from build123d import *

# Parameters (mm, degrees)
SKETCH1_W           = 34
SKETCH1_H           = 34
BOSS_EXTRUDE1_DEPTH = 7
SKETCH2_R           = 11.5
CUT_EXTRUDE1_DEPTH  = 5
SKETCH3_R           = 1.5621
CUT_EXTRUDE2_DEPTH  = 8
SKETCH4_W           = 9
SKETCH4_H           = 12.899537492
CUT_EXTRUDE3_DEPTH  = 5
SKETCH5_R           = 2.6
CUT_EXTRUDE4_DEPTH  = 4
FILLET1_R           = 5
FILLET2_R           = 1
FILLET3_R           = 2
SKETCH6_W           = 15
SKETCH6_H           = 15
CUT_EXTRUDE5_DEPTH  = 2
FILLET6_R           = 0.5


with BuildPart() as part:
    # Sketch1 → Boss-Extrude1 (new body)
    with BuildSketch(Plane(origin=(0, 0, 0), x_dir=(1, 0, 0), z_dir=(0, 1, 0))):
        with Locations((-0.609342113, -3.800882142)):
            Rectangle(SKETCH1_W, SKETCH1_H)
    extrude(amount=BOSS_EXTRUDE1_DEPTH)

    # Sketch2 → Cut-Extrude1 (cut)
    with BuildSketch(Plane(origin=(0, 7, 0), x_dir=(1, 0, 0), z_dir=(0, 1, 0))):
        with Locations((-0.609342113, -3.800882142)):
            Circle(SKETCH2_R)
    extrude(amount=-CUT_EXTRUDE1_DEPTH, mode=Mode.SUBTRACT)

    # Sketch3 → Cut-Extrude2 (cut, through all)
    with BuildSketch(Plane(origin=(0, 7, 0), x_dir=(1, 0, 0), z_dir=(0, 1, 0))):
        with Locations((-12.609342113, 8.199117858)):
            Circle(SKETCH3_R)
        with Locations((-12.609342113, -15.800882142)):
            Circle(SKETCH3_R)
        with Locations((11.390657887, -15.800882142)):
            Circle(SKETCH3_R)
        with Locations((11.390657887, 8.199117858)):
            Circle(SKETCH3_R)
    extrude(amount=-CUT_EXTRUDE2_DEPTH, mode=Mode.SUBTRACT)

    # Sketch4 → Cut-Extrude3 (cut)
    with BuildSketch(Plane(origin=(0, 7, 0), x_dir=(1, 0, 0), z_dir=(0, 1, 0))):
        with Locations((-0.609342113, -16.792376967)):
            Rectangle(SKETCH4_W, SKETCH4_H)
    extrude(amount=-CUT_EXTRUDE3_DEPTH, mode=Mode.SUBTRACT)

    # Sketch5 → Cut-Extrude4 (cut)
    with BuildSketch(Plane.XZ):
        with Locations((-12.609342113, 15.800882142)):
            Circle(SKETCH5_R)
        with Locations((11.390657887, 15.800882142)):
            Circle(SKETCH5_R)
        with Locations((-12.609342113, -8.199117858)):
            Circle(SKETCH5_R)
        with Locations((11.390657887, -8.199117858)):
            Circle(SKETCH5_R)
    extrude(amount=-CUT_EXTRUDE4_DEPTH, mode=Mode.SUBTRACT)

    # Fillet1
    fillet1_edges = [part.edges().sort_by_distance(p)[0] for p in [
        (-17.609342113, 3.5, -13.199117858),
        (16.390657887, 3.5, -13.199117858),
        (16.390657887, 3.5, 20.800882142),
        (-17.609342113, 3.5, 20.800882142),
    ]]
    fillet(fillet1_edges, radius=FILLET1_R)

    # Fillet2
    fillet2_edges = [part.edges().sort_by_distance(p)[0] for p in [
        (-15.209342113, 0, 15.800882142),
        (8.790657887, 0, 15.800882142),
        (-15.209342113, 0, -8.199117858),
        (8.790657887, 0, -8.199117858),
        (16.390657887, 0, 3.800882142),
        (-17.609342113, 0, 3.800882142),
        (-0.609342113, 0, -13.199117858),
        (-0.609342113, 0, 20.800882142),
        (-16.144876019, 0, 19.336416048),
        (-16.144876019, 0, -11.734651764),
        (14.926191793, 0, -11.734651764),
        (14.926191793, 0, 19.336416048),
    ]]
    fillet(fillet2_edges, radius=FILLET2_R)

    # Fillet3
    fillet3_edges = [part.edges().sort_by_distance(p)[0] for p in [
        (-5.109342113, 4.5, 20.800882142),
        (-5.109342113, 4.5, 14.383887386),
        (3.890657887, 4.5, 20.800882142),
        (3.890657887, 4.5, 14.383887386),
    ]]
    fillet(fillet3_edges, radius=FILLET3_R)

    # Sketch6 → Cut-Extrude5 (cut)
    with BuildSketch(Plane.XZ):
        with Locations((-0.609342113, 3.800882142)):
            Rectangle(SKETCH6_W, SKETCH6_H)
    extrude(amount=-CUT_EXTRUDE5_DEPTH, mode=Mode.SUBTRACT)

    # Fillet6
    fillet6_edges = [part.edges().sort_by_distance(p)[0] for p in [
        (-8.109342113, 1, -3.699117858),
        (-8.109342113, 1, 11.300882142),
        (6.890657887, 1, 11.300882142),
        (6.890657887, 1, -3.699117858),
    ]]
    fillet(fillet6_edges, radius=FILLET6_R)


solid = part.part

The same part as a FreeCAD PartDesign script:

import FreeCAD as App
import Part
import Sketcher
from FreeCAD import Vector


def edges_at(feature, points):
    """Names of the edges that pass closest to the given points."""
    edges = feature.Shape.Edges
    near = lambda p: min(range(len(edges)), key=lambda i: edges[i].distToShape(Part.Vertex(*p))[0])
    return sorted({f"Edge{near(p) + 1}" for p in points})


def add_polygon(sketch, points):
    """Adds a closed chain of lines whose ends are joined by coincident constraints."""
    first, n = sketch.GeometryCount, len(points)
    for a, b in zip(points, points[1:] + points[:1]):
        sketch.addGeometry(Part.LineSegment(App.Vector(*a, 0), App.Vector(*b, 0)), False)
    for i in range(n):
        sketch.addConstraint(Sketcher.Constraint("Coincident", first + i, 2, first + (i + 1) % n, 1))

doc = App.newDocument("Part")
body = doc.addObject("PartDesign::Body", "Body")

# Sketch on XZ plane
sketch1 = body.newObject("Sketcher::SketchObject", "Sketch")
sketch1.AttachmentSupport = (doc.getObject("XZ_Plane"), [""])
sketch1.MapMode = "FlatFace"
add_polygon(sketch1, [(-17.609342, -13.199118), (-17.609342, 20.800882), (16.390658, 20.800882), (16.390658, -13.199118)])  # lines 0-3
sketch1.addConstraint(Sketcher.Constraint("Vertical", 0))
sketch1.addConstraint(Sketcher.Constraint("Horizontal", 1))
sketch1.addConstraint(Sketcher.Constraint("Vertical", 2))
sketch1.addConstraint(Sketcher.Constraint("Horizontal", 3))
sketch1.addConstraint(Sketcher.Constraint("Equal", 3, 0))
sketch1.addConstraint(Sketcher.Constraint("DistanceX", 1, 1, 1, 2, 34.0))
sketch1.addConstraint(Sketcher.Constraint("DistanceX", 0, 2, -1, 1, 17.609342))
sketch1.addConstraint(Sketcher.Constraint("DistanceY", -1, 1, 0, 2, 20.800882))
pad1 = body.newObject("PartDesign::Pad", "Pad")
pad1.Profile = sketch1
pad1.Length = 7
pad1.Reversed = True

# Sketch on XZ plane
sketch2 = body.newObject("Sketcher::SketchObject", "Sketch001")
sketch2.AttachmentSupport = (doc.getObject("XZ_Plane"), [""])
sketch2.MapMode = "FlatFace"
sketch2.AttachmentOffset = App.Placement(Vector(0, 0, -7), App.Rotation())
sketch2.addGeometry(Part.Circle(Vector(-0.609342, 3.800882, 0), Vector(0, 0, 1), 11.5), False)
sketch2.addConstraint(Sketcher.Constraint("Diameter", 0, 23.0))
sketch2.addConstraint(Sketcher.Constraint("DistanceX", 0, 3, -1, 1, 0.609342))
sketch2.addConstraint(Sketcher.Constraint("DistanceY", -1, 1, 0, 3, 3.800882))
pocket1 = body.newObject("PartDesign::Pocket", "Pocket")
pocket1.Profile = sketch2
pocket1.Length = 5
pocket1.Reversed = True

# Sketch on XZ plane
sketch3 = body.newObject("Sketcher::SketchObject", "Sketch002")
sketch3.AttachmentSupport = (doc.getObject("XZ_Plane"), [""])
sketch3.MapMode = "FlatFace"
sketch3.AttachmentOffset = App.Placement(Vector(0, 0, -7), App.Rotation())
sketch3.addGeometry(Part.Circle(Vector(-12.609342, -8.199118, 0), Vector(0, 0, 1), 1.5621), False)
sketch3.addGeometry(Part.Circle(Vector(-12.609342, 15.800882, 0), Vector(0, 0, 1), 1.5621), False)
sketch3.addGeometry(Part.Circle(Vector(11.390658, 15.800882, 0), Vector(0, 0, 1), 1.5621), False)
sketch3.addGeometry(Part.Circle(Vector(11.390658, -8.199118, 0), Vector(0, 0, 1), 1.5621), False)
sketch3.addConstraint(Sketcher.Constraint("Equal", 0, 1))
sketch3.addConstraint(Sketcher.Constraint("Equal", 1, 2))
sketch3.addConstraint(Sketcher.Constraint("Equal", 2, 3))
sketch3.addConstraint(Sketcher.Constraint("Horizontal", 1, 3, 2, 3))
sketch3.addConstraint(Sketcher.Constraint("Horizontal", 0, 3, 3, 3))
sketch3.addConstraint(Sketcher.Constraint("Vertical", 0, 3, 1, 3))
sketch3.addConstraint(Sketcher.Constraint("Vertical", 2, 3, 3, 3))
sketch3.addConstraint(Sketcher.Constraint("DistanceY", 0, 3, 1, 3, 24.0))
sketch3.addConstraint(Sketcher.Constraint("DistanceX", 1, 3, 2, 3, 24.0))
sketch3.addConstraint(Sketcher.Constraint("Diameter", 0, 3.1242))
sketch3.addConstraint(Sketcher.Constraint("DistanceX", 0, 3, -1, 1, 12.609342))
sketch3.addConstraint(Sketcher.Constraint("DistanceY", 0, 3, -1, 1, 8.199118))
pocket2 = body.newObject("PartDesign::Pocket", "Pocket001")
pocket2.Profile = sketch3
pocket2.Type = "ThroughAll"
pocket2.Reversed = True

# Sketch on XZ plane
sketch4 = body.newObject("Sketcher::SketchObject", "Sketch003")
sketch4.AttachmentSupport = (doc.getObject("XZ_Plane"), [""])
sketch4.MapMode = "FlatFace"
sketch4.AttachmentOffset = App.Placement(Vector(0, 0, -7), App.Rotation())
add_polygon(sketch4, [(-5.109342, 10.342608), (-5.109342, 23.242146), (3.890658, 23.242146), (3.890658, 10.342608)])  # lines 0-3
sketch4.addConstraint(Sketcher.Constraint("Vertical", 0))
sketch4.addConstraint(Sketcher.Constraint("Horizontal", 1))
sketch4.addConstraint(Sketcher.Constraint("Vertical", 2))
sketch4.addConstraint(Sketcher.Constraint("Horizontal", 3))
sketch4.addConstraint(Sketcher.Constraint("DistanceX", 1, 1, 1, 2, 9.0))
sketch4.addConstraint(Sketcher.Constraint("DistanceY", 0, 1, 0, 2, 12.899537))
sketch4.addConstraint(Sketcher.Constraint("DistanceY", -1, 1, 2, 2, 10.342608))
sketch4.addConstraint(Sketcher.Constraint("DistanceX", 0, 2, -1, 1, 5.109342))
pocket3 = body.newObject("PartDesign::Pocket", "Pocket002")
pocket3.Profile = sketch4
pocket3.Length = 5
pocket3.Reversed = True

# Sketch on XZ plane
sketch5 = body.newObject("Sketcher::SketchObject", "Sketch004")
sketch5.AttachmentSupport = (doc.getObject("XZ_Plane"), [""])
sketch5.MapMode = "FlatFace"
sketch5.addGeometry(Part.Circle(Vector(-12.609342, 15.800882, 0), Vector(0, 0, 1), 2.6), False)
sketch5.addGeometry(Part.Circle(Vector(11.390658, 15.800882, 0), Vector(0, 0, 1), 2.6), False)
sketch5.addGeometry(Part.Circle(Vector(-12.609342, -8.199118, 0), Vector(0, 0, 1), 2.6), False)
sketch5.addGeometry(Part.Circle(Vector(11.390658, -8.199118, 0), Vector(0, 0, 1), 2.6), False)
sketch5.addConstraint(Sketcher.Constraint("Equal", 0, 1))
sketch5.addConstraint(Sketcher.Constraint("Equal", 1, 2))
sketch5.addConstraint(Sketcher.Constraint("Equal", 2, 3))
sketch5.addConstraint(Sketcher.Constraint("Horizontal", 0, 3, 1, 3))
sketch5.addConstraint(Sketcher.Constraint("Horizontal", 2, 3, 3, 3))
sketch5.addConstraint(Sketcher.Constraint("Vertical", 0, 3, 2, 3))
sketch5.addConstraint(Sketcher.Constraint("Vertical", 1, 3, 3, 3))
sketch5.addConstraint(Sketcher.Constraint("Diameter", 0, 5.2))
sketch5.addConstraint(Sketcher.Constraint("DistanceX", 0, 3, 1, 3, 24.0))
sketch5.addConstraint(Sketcher.Constraint("DistanceY", 2, 3, 0, 3, 24.0))
sketch5.addConstraint(Sketcher.Constraint("DistanceX", 0, 3, -1, 1, 12.609342))
sketch5.addConstraint(Sketcher.Constraint("DistanceY", -1, 1, 0, 3, 15.800882))
pocket4 = body.newObject("PartDesign::Pocket", "Pocket003")
pocket4.Profile = sketch5
pocket4.Length = 4
doc.recompute()

fillet = body.newObject("PartDesign::Fillet", "Fillet")
fillet.Base = (pocket4, edges_at(pocket4, [
    (-17.609, 3.5, -13.199),
    (16.391, 3.5, -13.199),
    (16.391, 3.5, 20.801),
    (-17.609, 3.5, 20.801),
]))
fillet.Radius = 5
doc.recompute()

fillet2 = body.newObject("PartDesign::Fillet", "Fillet001")
fillet2.Base = (fillet, edges_at(fillet, [
    (-15.209, 0, 15.801),
    (8.791, 0, 15.801),
    (-15.209, 0, -8.199),
    (8.791, 0, -8.199),
    (16.391, 0, 3.801),
    (-17.609, 0, 3.801),
    (-0.609, 0, -13.199),
    (-0.609, 0, 20.801),
    (-16.145, 0, 19.336),
    (-16.145, 0, -11.735),
    (14.926, 0, -11.735),
    (14.926, 0, 19.336),
]))
fillet2.Radius = 1
doc.recompute()

fillet3 = body.newObject("PartDesign::Fillet", "Fillet002")
fillet3.Base = (fillet2, edges_at(fillet2, [
    (-5.109, 4.5, 20.801),
    (-5.109, 4.5, 14.384),
    (3.891, 4.5, 20.801),
    (3.891, 4.5, 14.384),
]))
fillet3.Radius = 2

# Sketch on XZ plane
sketch6 = body.newObject("Sketcher::SketchObject", "Sketch005")
sketch6.AttachmentSupport = (doc.getObject("XZ_Plane"), [""])
sketch6.MapMode = "FlatFace"
add_polygon(sketch6, [(-8.109342, 11.300882), (-8.109342, -3.699118), (6.890658, -3.699118), (6.890658, 11.300882)])  # lines 0-3
sketch6.addConstraint(Sketcher.Constraint("Vertical", 0))
sketch6.addConstraint(Sketcher.Constraint("Horizontal", 1))
sketch6.addConstraint(Sketcher.Constraint("Vertical", 2))
sketch6.addConstraint(Sketcher.Constraint("Horizontal", 3))
sketch6.addConstraint(Sketcher.Constraint("Equal", 3, 0))
sketch6.addConstraint(Sketcher.Constraint("DistanceX", 1, 1, 1, 2, 15.0))
sketch6.addConstraint(Sketcher.Constraint("DistanceX", 0, 2, -1, 1, 8.109342))
sketch6.addConstraint(Sketcher.Constraint("DistanceY", 0, 2, -1, 1, 3.699118))
pocket5 = body.newObject("PartDesign::Pocket", "Pocket004")
pocket5.Profile = sketch6
pocket5.Length = 2
doc.recompute()

fillet4 = body.newObject("PartDesign::Fillet", "Fillet003")
fillet4.Base = (pocket5, edges_at(pocket5, [
    (-8.109, 1, -3.699),
    (-8.109, 1, 11.301),
    (6.891, 1, 11.301),
    (6.891, 1, -3.699),
]))
fillet4.Radius = 0.5

doc.recompute()
